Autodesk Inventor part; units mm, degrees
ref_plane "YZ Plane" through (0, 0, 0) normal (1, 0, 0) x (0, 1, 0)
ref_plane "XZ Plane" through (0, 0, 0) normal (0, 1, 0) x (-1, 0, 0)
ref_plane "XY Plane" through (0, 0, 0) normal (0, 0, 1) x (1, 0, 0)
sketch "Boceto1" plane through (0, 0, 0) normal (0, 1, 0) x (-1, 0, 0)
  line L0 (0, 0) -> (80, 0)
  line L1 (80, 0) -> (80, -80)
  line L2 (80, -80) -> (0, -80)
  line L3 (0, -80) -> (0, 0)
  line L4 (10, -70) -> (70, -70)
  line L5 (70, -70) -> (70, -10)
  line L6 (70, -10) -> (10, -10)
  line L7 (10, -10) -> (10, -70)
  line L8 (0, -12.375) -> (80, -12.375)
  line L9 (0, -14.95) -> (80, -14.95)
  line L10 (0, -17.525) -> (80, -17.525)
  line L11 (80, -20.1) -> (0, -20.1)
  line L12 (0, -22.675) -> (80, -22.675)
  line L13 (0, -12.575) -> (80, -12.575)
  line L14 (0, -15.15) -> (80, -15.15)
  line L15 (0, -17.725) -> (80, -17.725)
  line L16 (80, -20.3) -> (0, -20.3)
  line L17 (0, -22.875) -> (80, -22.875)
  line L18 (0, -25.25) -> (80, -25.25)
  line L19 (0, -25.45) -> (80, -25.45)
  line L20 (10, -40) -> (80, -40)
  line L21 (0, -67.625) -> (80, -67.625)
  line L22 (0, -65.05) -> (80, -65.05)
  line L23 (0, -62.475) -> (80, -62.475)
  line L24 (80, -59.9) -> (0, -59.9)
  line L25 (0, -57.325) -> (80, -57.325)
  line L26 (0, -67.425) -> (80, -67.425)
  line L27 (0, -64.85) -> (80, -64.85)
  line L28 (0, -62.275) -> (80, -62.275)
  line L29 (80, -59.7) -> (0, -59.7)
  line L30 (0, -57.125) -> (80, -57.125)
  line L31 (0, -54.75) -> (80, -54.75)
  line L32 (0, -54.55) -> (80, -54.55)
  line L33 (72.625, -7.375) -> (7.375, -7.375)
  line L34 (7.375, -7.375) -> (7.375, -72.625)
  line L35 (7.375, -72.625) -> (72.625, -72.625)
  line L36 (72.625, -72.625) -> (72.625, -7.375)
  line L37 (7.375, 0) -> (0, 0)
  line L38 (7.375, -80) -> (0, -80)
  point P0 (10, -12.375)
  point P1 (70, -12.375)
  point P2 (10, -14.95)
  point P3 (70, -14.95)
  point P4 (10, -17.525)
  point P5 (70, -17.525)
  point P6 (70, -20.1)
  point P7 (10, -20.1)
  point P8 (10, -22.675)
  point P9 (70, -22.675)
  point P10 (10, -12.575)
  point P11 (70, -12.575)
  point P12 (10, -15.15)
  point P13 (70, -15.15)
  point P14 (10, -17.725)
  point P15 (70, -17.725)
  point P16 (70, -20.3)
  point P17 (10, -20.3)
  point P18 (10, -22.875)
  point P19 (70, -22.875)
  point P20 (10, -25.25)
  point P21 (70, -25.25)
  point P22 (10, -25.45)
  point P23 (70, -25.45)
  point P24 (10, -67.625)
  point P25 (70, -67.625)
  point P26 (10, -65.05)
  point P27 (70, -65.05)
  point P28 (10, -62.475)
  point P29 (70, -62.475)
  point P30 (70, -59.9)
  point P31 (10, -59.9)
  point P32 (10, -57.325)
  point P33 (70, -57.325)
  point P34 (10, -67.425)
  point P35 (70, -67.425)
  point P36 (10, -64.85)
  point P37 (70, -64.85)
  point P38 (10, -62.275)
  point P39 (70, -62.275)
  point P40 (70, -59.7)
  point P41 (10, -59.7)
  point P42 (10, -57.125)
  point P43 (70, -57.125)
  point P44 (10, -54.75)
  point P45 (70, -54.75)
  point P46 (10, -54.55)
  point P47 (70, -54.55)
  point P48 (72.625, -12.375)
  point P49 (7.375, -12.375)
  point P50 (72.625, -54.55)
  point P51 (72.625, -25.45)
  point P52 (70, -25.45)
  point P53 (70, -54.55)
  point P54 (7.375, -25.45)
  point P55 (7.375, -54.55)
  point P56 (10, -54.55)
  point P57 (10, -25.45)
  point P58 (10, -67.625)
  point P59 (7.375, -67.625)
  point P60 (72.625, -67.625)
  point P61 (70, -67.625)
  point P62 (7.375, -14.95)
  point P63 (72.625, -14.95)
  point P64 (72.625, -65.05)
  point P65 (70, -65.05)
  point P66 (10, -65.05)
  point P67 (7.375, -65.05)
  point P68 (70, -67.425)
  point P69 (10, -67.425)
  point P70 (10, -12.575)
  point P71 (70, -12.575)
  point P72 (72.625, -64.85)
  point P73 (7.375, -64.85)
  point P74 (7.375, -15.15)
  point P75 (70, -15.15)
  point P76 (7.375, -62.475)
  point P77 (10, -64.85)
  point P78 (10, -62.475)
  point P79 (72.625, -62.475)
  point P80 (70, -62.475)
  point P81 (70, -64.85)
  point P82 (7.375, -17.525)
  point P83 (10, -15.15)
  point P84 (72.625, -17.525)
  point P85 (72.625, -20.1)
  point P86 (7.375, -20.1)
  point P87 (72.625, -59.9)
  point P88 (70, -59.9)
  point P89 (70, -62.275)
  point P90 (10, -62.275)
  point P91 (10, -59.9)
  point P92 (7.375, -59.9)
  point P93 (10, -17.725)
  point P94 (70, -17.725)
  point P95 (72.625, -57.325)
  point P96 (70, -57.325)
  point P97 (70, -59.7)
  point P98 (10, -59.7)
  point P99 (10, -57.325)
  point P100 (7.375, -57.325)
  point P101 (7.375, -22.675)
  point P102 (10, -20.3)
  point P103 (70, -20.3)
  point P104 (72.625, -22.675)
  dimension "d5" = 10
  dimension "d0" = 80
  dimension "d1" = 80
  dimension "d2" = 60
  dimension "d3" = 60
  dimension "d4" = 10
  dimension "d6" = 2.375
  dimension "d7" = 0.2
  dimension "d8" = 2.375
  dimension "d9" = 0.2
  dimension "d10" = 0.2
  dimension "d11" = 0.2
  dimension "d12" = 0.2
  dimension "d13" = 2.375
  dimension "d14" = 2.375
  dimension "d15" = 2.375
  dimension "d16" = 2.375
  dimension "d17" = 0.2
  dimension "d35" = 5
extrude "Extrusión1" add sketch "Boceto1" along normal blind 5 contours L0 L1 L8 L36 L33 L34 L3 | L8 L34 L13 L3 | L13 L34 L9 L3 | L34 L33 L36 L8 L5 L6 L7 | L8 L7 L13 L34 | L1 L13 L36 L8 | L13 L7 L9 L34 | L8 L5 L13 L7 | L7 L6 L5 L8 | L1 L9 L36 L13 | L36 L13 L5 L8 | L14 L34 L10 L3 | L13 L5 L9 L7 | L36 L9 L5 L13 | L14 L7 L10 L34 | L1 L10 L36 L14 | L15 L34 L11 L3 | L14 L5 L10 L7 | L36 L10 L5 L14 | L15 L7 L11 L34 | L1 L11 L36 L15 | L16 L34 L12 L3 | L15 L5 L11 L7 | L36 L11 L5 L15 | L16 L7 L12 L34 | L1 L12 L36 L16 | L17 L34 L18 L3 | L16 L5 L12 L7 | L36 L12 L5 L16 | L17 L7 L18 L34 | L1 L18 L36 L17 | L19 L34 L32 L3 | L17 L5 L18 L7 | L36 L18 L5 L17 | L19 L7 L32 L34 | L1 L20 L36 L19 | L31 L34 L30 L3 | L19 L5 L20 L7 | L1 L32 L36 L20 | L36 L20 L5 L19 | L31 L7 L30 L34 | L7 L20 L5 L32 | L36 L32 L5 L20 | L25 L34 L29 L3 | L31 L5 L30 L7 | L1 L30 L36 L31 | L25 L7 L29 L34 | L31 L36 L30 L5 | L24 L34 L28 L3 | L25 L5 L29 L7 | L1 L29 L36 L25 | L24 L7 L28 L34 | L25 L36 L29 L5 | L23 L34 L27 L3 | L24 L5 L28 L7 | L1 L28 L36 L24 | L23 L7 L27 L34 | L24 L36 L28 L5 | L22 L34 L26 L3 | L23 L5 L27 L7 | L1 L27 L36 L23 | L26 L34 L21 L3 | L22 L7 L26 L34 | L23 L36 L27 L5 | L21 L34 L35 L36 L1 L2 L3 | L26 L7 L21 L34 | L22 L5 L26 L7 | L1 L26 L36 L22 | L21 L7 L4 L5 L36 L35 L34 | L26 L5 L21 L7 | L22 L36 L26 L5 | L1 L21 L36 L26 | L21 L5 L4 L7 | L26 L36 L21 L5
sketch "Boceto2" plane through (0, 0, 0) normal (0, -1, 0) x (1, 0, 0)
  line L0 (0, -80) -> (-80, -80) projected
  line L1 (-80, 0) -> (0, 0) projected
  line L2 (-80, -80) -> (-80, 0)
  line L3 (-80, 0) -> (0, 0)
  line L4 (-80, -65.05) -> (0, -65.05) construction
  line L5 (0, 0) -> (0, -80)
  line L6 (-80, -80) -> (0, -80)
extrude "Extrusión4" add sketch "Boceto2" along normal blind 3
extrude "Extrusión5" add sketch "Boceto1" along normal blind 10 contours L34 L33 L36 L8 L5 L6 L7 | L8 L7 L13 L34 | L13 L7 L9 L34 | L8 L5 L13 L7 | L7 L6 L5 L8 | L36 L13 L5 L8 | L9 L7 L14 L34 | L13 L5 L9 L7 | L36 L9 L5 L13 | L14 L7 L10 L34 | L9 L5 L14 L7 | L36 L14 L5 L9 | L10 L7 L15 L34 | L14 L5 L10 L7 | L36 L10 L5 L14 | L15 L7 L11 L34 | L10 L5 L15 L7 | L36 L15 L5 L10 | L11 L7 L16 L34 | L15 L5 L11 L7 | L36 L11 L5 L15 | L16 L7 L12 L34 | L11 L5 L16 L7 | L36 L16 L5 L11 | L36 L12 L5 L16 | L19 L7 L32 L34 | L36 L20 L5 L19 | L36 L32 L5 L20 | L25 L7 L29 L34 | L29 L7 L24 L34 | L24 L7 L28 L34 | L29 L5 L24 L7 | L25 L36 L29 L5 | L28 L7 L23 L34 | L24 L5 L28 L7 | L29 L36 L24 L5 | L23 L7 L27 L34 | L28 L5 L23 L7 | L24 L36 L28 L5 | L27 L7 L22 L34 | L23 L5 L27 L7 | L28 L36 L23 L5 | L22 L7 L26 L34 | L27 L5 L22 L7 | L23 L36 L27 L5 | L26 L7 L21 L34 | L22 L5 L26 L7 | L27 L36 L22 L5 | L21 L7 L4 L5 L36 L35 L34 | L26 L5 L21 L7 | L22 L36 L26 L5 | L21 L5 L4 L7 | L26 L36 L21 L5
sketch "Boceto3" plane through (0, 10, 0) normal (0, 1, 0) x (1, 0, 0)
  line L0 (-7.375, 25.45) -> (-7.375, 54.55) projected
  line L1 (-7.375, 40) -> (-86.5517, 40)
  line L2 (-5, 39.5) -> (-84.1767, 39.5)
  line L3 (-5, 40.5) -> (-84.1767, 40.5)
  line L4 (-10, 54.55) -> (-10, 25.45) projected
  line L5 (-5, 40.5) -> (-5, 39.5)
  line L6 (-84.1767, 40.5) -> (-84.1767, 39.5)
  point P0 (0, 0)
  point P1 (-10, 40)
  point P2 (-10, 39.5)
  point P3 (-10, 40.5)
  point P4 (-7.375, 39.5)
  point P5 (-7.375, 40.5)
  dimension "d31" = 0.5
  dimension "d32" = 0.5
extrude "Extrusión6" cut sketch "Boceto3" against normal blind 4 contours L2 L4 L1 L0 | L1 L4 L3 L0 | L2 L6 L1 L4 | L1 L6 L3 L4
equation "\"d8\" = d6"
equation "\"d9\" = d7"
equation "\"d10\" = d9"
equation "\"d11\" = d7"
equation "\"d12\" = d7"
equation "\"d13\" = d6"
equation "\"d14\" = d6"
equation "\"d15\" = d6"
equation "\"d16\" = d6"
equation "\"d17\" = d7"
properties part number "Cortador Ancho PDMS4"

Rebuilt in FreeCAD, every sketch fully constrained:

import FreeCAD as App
import Part
import Sketcher

V = App.Vector


def add_polygon(sketch, points):
    """Adds a closed chain of lines whose ends are joined by coincident constraints."""
    first, n = sketch.GeometryCount, len(points)
    for a, b in zip(points, points[1:] + points[:1]):
        sketch.addGeometry(Part.LineSegment(App.Vector(*a, 0), App.Vector(*b, 0)), False)
    for i in range(n):
        sketch.addConstraint(Sketcher.Constraint("Coincident", first + i, 2, first + (i + 1) % n, 1))

doc = App.newDocument("Part")
body = doc.addObject("PartDesign::Body", "Body")
body.AllowCompound = True

# Sketch on XZ plane
sketch1 = body.newObject("Sketcher::SketchObject", "Sketch")
sketch1.AttachmentSupport = (doc.getObject("XZ_Plane"), [""])
sketch1.MapMode = "FlatFace"
add_polygon(sketch1, [(0, 0), (0, -14.9), (-80, -14.9), (-80, 0)])  # lines 0-3
add_polygon(sketch1, [(0, -15.2), (0, -17.5), (-80, -17.5), (-80, -15.2)])  # lines 4-7
add_polygon(sketch1, [(0, -17.7), (0, -20.1), (-80, -20.1), (-80, -17.7)])  # lines 8-11
add_polygon(sketch1, [(0, -20.3), (0, -22.7), (-80, -22.7), (-80, -20.3)])  # lines 12-15
add_polygon(sketch1, [(0, -22.9), (0, -25.2), (-80, -25.2), (-80, -22.9)])  # lines 16-19
add_polygon(sketch1, [(0, -25.4), (0, -54.5), (-80, -54.5), (-80, -25.4)])  # lines 20-23
add_polygon(sketch1, [(0, -54.8), (0, -57.1), (-80, -57.1), (-80, -54.8)])  # lines 24-27
add_polygon(sketch1, [(0, -57.3), (0, -59.7), (-80, -59.7), (-80, -57.3)])  # lines 28-31
add_polygon(sketch1, [(0, -59.9), (0, -62.3), (-80, -62.3), (-80, -59.9)])  # lines 32-35
add_polygon(sketch1, [(0, -62.5), (0, -64.8), (-80, -64.8), (-80, -62.5)])  # lines 36-39
add_polygon(sketch1, [(0, -65), (0, -80), (-80, -80), (-80, -65)])  # lines 40-43
sketch1.addConstraint(Sketcher.Constraint("Vertical", 0))
sketch1.addConstraint(Sketcher.Constraint("Horizontal", 1))
sketch1.addConstraint(Sketcher.Constraint("Vertical", 2))
sketch1.addConstraint(Sketcher.Constraint("Horizontal", 3))
sketch1.addConstraint(Sketcher.Constraint("Vertical", 4))
sketch1.addConstraint(Sketcher.Constraint("Horizontal", 5))
sketch1.addConstraint(Sketcher.Constraint("Vertical", 6))
sketch1.addConstraint(Sketcher.Constraint("Horizontal", 7))
sketch1.addConstraint(Sketcher.Constraint("Vertical", 8))
sketch1.addConstraint(Sketcher.Constraint("Horizontal", 9))
sketch1.addConstraint(Sketcher.Constraint("Vertical", 10))
sketch1.addConstraint(Sketcher.Constraint("Horizontal", 11))
sketch1.addConstraint(Sketcher.Constraint("Vertical", 12))
sketch1.addConstraint(Sketcher.Constraint("Horizontal", 13))
sketch1.addConstraint(Sketcher.Constraint("Vertical", 14))
sketch1.addConstraint(Sketcher.Constraint("Horizontal", 15))
sketch1.addConstraint(Sketcher.Constraint("Vertical", 16))
sketch1.addConstraint(Sketcher.Constraint("Horizontal", 17))
sketch1.addConstraint(Sketcher.Constraint("Vertical", 18))
sketch1.addConstraint(Sketcher.Constraint("Horizontal", 19))
sketch1.addConstraint(Sketcher.Constraint("Vertical", 20))
sketch1.addConstraint(Sketcher.Constraint("Horizontal", 21))
sketch1.addConstraint(Sketcher.Constraint("Vertical", 22))
sketch1.addConstraint(Sketcher.Constraint("Horizontal", 23))
sketch1.addConstraint(Sketcher.Constraint("Vertical", 24))
sketch1.addConstraint(Sketcher.Constraint("Horizontal", 25))
sketch1.addConstraint(Sketcher.Constraint("Vertical", 26))
sketch1.addConstraint(Sketcher.Constraint("Horizontal", 27))
sketch1.addConstraint(Sketcher.Constraint("Vertical", 28))
sketch1.addConstraint(Sketcher.Constraint("Horizontal", 29))
sketch1.addConstraint(Sketcher.Constraint("Vertical", 30))
sketch1.addConstraint(Sketcher.Constraint("Horizontal", 31))
sketch1.addConstraint(Sketcher.Constraint("Vertical", 32))
sketch1.addConstraint(Sketcher.Constraint("Horizontal", 33))
sketch1.addConstraint(Sketcher.Constraint("Vertical", 34))
sketch1.addConstraint(Sketcher.Constraint("Horizontal", 35))
sketch1.addConstraint(Sketcher.Constraint("Vertical", 36))
sketch1.addConstraint(Sketcher.Constraint("Horizontal", 37))
sketch1.addConstraint(Sketcher.Constraint("Vertical", 38))
sketch1.addConstraint(Sketcher.Constraint("Horizontal", 39))
sketch1.addConstraint(Sketcher.Constraint("Vertical", 40))
sketch1.addConstraint(Sketcher.Constraint("Horizontal", 41))
sketch1.addConstraint(Sketcher.Constraint("Vertical", 42))
sketch1.addConstraint(Sketcher.Constraint("Horizontal", 43))
sketch1.addConstraint(Sketcher.Constraint("Coincident", 3, 2, -1, 1))
sketch1.addConstraint(Sketcher.Constraint("PointOnObject", 4, 2, -2))
sketch1.addConstraint(Sketcher.Constraint("PointOnObject", 8, 2, -2))
sketch1.addConstraint(Sketcher.Constraint("PointOnObject", 12, 2, -2))
sketch1.addConstraint(Sketcher.Constraint("PointOnObject", 16, 2, -2))
sketch1.addConstraint(Sketcher.Constraint("PointOnObject", 20, 2, -2))
sketch1.addConstraint(Sketcher.Constraint("PointOnObject", 24, 2, -2))
sketch1.addConstraint(Sketcher.Constraint("PointOnObject", 28, 2, -2))
sketch1.addConstraint(Sketcher.Constraint("PointOnObject", 32, 2, -2))
sketch1.addConstraint(Sketcher.Constraint("PointOnObject", 36, 2, -2))
sketch1.addConstraint(Sketcher.Constraint("PointOnObject", 40, 2, -2))
sketch1.addConstraint(Sketcher.Constraint("Vertical", 2, 2, 5, 2))
sketch1.addConstraint(Sketcher.Constraint("Vertical", 6, 2, 9, 2))
sketch1.addConstraint(Sketcher.Constraint("Vertical", 10, 2, 13, 2))
sketch1.addConstraint(Sketcher.Constraint("Vertical", 14, 2, 17, 2))
sketch1.addConstraint(Sketcher.Constraint("Vertical", 18, 2, 21, 2))
sketch1.addConstraint(Sketcher.Constraint("Vertical", 22, 2, 25, 2))
sketch1.addConstraint(Sketcher.Constraint("Vertical", 26, 2, 29, 2))
sketch1.addConstraint(Sketcher.Constraint("Vertical", 30, 2, 33, 2))
sketch1.addConstraint(Sketcher.Constraint("Vertical", 34, 2, 37, 2))
sketch1.addConstraint(Sketcher.Constraint("Vertical", 38, 2, 41, 2))
sketch1.addConstraint(Sketcher.Constraint("Equal", 6, 8))
sketch1.addConstraint(Sketcher.Constraint("Equal", 10, 12))
sketch1.addConstraint(Sketcher.Constraint("Equal", 14, 16))
sketch1.addConstraint(Sketcher.Constraint("Equal", 18, 24))
sketch1.addConstraint(Sketcher.Constraint("Equal", 26, 28))
sketch1.addConstraint(Sketcher.Constraint("Equal", 30, 32))
sketch1.addConstraint(Sketcher.Constraint("Equal", 34, 36))
sketch1.addConstraint(Sketcher.Constraint("Equal", 2, 40))
sketch1.addConstraint(Sketcher.Constraint("DistanceX", 1, 2, 1, 1, 80.0))
sketch1.addConstraint(Sketcher.Constraint("DistanceY", 40, 2, -1, 1, 80.0))
sketch1.addConstraint(Sketcher.Constraint("DistanceY", 6, 2, 1, 2, 0.2))
sketch1.addConstraint(Sketcher.Constraint("DistanceY", 10, 2, 5, 2, 0.2))
sketch1.addConstraint(Sketcher.Constraint("DistanceY", 14, 2, 9, 2, 0.2))
sketch1.addConstraint(Sketcher.Constraint("DistanceY", 18, 2, 13, 2, 0.2))
sketch1.addConstraint(Sketcher.Constraint("DistanceY", 22, 2, 17, 2, 0.2))
sketch1.addConstraint(Sketcher.Constraint("DistanceY", 26, 2, 21, 2, 0.2))
sketch1.addConstraint(Sketcher.Constraint("DistanceY", 30, 2, 25, 2, 0.2))
sketch1.addConstraint(Sketcher.Constraint("DistanceY", 34, 2, 29, 2, 0.2))
sketch1.addConstraint(Sketcher.Constraint("DistanceY", 38, 2, 33, 2, 0.2))
sketch1.addConstraint(Sketcher.Constraint("DistanceY", 42, 2, 37, 2, 0.2))
sketch1.addConstraint(Sketcher.Constraint("DistanceY", 4, 2, 4, 1, 2.375))
sketch1.addConstraint(Sketcher.Constraint("DistanceY", 20, 2, 20, 1, 29.1))
pad1 = body.newObject("PartDesign::Pad", "Pad")
pad1.Profile = sketch1
pad1.Length = 5
pad1.Reversed = True

# Sketch on XZ plane
sketch2 = body.newObject("Sketcher::SketchObject", "Sketch001")
sketch2.AttachmentSupport = (doc.getObject("XZ_Plane"), [""])
sketch2.MapMode = "FlatFace"
add_polygon(sketch2, [(-80, -80), (0, -80), (0, 0), (-80, 0)])  # lines 0-3
sketch2.addConstraint(Sketcher.Constraint("Horizontal", 0))
sketch2.addConstraint(Sketcher.Constraint("Vertical", 1))
sketch2.addConstraint(Sketcher.Constraint("Horizontal", 2))
sketch2.addConstraint(Sketcher.Constraint("Vertical", 3))
sketch2.addConstraint(Sketcher.Constraint("Coincident", 1, 2, -1, 1))
sketch2.addConstraint(Sketcher.Constraint("Equal", 2, 1))
sketch2.addConstraint(Sketcher.Constraint("DistanceX", 0, 1, 0, 2, 80.0))
pad2 = body.newObject("PartDesign::Pad", "Pad001")
pad2.Profile = sketch2
pad2.Length = 3

# Sketch on XZ plane
sketch3 = body.newObject("Sketcher::SketchObject", "Sketch002")
sketch3.AttachmentSupport = (doc.getObject("XZ_Plane"), [""])
sketch3.MapMode = "FlatFace"
add_polygon(sketch3, [(-7.4, -7.4), (-7.4, -22.7), (-10, -22.7), (-10, -20.3), (-70, -20.3), (-70, -22.7), (-72.6, -22.7), (-72.6, -7.4)])  # lines 0-7
add_polygon(sketch3, [(-10, -25.4), (-7.4, -25.4), (-7.4, -54.5), (-10, -54.5)])  # lines 8-11
add_polygon(sketch3, [(-72.6, -25.4), (-70, -25.4), (-70, -54.5), (-72.6, -54.5)])  # lines 12-15
add_polygon(sketch3, [(-10, -57.3), (-7.4, -57.3), (-7.4, -72.6), (-72.6, -72.6), (-72.6, -57.3), (-70, -57.3), (-70, -59.7), (-10, -59.7)])  # lines 16-23
sketch3.addConstraint(Sketcher.Constraint("Vertical", 0))
sketch3.addConstraint(Sketcher.Constraint("Horizontal", 1))
sketch3.addConstraint(Sketcher.Constraint("Vertical", 2))
sketch3.addConstraint(Sketcher.Constraint("Horizontal", 3))
sketch3.addConstraint(Sketcher.Constraint("Vertical", 4))
sketch3.addConstraint(Sketcher.Constraint("Horizontal", 5))
sketch3.addConstraint(Sketcher.Constraint("Vertical", 6))
sketch3.addConstraint(Sketcher.Constraint("Horizontal", 7))
sketch3.addConstraint(Sketcher.Constraint("Horizontal", 8))
sketch3.addConstraint(Sketcher.Constraint("Vertical", 9))
sketch3.addConstraint(Sketcher.Constraint("Horizontal", 10))
sketch3.addConstraint(Sketcher.Constraint("Vertical", 11))
sketch3.addConstraint(Sketcher.Constraint("Horizontal", 12))
sketch3.addConstraint(Sketcher.Constraint("Vertical", 13))
sketch3.addConstraint(Sketcher.Constraint("Horizontal", 14))
sketch3.addConstraint(Sketcher.Constraint("Vertical", 15))
sketch3.addConstraint(Sketcher.Constraint("Horizontal", 16))
sketch3.addConstraint(Sketcher.Constraint("Vertical", 17))
sketch3.addConstraint(Sketcher.Constraint("Horizontal", 18))
sketch3.addConstraint(Sketcher.Constraint("Vertical", 19))
sketch3.addConstraint(Sketcher.Constraint("Horizontal", 20))
sketch3.addConstraint(Sketcher.Constraint("Vertical", 21))
sketch3.addConstraint(Sketcher.Constraint("Horizontal", 22))
sketch3.addConstraint(Sketcher.Constraint("Vertical", 23))
sketch3.addConstraint(Sketcher.Constraint("Horizontal", 1, 2, 4, 2))
sketch3.addConstraint(Sketcher.Constraint("Horizontal", 11, 2, 12, 2))
sketch3.addConstraint(Sketcher.Constraint("Horizontal", 10, 2, 13, 2))
sketch3.addConstraint(Sketcher.Constraint("Horizontal", 16, 2, 19, 2))
sketch3.addConstraint(Sketcher.Constraint("Vertical", 7, 2, 8, 2))
sketch3.addConstraint(Sketcher.Constraint("Vertical", 2, 2, 10, 2))
sketch3.addConstraint(Sketcher.Constraint("Vertical", 4, 2, 12, 2))
sketch3.addConstraint(Sketcher.Constraint("Vertical", 6, 2, 14, 2))
sketch3.addConstraint(Sketcher.Constraint("Vertical", 9, 2, 16, 2))
sketch3.addConstraint(Sketcher.Constraint("Vertical", 15, 2, 18, 2))
sketch3.addConstraint(Sketcher.Constraint("Vertical", 13, 2, 20, 2))
sketch3.addConstraint(Sketcher.Constraint("Vertical", 11, 2, 22, 2))
sketch3.addConstraint(Sketcher.Constraint("Equal", 1, 5))
sketch3.addConstraint(Sketcher.Constraint("Equal", 6, 17))
sketch3.addConstraint(Sketcher.Constraint("Equal", 4, 21))
sketch3.addConstraint(Sketcher.Constraint("DistanceX", 3, 2, 3, 1, 60.0))
sketch3.addConstraint(Sketcher.Constraint("DistanceX", 1, 2, -1, 1, 10.0))
sketch3.addConstraint(Sketcher.Constraint("DistanceY", 2, 1, 2, 2, 2.375))
sketch3.addConstraint(Sketcher.Constraint("DistanceY", 0, 2, 0, 1, 15.3))
sketch3.addConstraint(Sketcher.Constraint("DistanceY", 9, 2, 9, 1, 29.1))
sketch3.addConstraint(Sketcher.Constraint("DistanceX", 7, 1, 7, 2, 65.25))
sketch3.addConstraint(Sketcher.Constraint("DistanceY", 2, 2, -1, 1, 20.3))
sketch3.addConstraint(Sketcher.Constraint("DistanceY", 21, 2, -1, 1, 59.7))
sketch3.addConstraint(Sketcher.Constraint("DistanceY", 8, 2, -1, 1, 25.45))
pad3 = body.newObject("PartDesign::Pad", "Pad002")
pad3.Profile = sketch3
pad3.Length = 10
pad3.Reversed = True

# Sketch on XZ plane
sketch4 = body.newObject("Sketcher::SketchObject", "Sketch003")
sketch4.AttachmentSupport = (doc.getObject("XZ_Plane"), [""])
sketch4.MapMode = "FlatFace"
sketch4.AttachmentOffset = App.Placement(V(0, 0, -10), App.Rotation())
add_polygon(sketch4, [(-7.4, -39.5), (-7.4, -40.5), (-84.2, -40.5), (-84.2, -39.5)])  # lines 0-3
sketch4.addConstraint(Sketcher.Constraint("Vertical", 0))
sketch4.addConstraint(Sketcher.Constraint("Horizontal", 1))
sketch4.addConstraint(Sketcher.Constraint("Vertical", 2))
sketch4.addConstraint(Sketcher.Constraint("Horizontal", 3))
sketch4.addConstraint(Sketcher.Constraint("DistanceY", 0, 2, 0, 1, 1.0))
sketch4.addConstraint(Sketcher.Constraint("DistanceY", 0, 2, -1, 1, 40.5))
sketch4.addConstraint(Sketcher.Constraint("DistanceX", 1, 2, 1, 1, 76.8017))
sketch4.addConstraint(Sketcher.Constraint("DistanceX", 0, 2, -1, 1, 7.375))
pocket1 = body.newObject("PartDesign::Pocket", "Pocket")
pocket1.Profile = sketch4
pocket1.Length = 4
pocket1.Reversed = True

doc.recompute()
